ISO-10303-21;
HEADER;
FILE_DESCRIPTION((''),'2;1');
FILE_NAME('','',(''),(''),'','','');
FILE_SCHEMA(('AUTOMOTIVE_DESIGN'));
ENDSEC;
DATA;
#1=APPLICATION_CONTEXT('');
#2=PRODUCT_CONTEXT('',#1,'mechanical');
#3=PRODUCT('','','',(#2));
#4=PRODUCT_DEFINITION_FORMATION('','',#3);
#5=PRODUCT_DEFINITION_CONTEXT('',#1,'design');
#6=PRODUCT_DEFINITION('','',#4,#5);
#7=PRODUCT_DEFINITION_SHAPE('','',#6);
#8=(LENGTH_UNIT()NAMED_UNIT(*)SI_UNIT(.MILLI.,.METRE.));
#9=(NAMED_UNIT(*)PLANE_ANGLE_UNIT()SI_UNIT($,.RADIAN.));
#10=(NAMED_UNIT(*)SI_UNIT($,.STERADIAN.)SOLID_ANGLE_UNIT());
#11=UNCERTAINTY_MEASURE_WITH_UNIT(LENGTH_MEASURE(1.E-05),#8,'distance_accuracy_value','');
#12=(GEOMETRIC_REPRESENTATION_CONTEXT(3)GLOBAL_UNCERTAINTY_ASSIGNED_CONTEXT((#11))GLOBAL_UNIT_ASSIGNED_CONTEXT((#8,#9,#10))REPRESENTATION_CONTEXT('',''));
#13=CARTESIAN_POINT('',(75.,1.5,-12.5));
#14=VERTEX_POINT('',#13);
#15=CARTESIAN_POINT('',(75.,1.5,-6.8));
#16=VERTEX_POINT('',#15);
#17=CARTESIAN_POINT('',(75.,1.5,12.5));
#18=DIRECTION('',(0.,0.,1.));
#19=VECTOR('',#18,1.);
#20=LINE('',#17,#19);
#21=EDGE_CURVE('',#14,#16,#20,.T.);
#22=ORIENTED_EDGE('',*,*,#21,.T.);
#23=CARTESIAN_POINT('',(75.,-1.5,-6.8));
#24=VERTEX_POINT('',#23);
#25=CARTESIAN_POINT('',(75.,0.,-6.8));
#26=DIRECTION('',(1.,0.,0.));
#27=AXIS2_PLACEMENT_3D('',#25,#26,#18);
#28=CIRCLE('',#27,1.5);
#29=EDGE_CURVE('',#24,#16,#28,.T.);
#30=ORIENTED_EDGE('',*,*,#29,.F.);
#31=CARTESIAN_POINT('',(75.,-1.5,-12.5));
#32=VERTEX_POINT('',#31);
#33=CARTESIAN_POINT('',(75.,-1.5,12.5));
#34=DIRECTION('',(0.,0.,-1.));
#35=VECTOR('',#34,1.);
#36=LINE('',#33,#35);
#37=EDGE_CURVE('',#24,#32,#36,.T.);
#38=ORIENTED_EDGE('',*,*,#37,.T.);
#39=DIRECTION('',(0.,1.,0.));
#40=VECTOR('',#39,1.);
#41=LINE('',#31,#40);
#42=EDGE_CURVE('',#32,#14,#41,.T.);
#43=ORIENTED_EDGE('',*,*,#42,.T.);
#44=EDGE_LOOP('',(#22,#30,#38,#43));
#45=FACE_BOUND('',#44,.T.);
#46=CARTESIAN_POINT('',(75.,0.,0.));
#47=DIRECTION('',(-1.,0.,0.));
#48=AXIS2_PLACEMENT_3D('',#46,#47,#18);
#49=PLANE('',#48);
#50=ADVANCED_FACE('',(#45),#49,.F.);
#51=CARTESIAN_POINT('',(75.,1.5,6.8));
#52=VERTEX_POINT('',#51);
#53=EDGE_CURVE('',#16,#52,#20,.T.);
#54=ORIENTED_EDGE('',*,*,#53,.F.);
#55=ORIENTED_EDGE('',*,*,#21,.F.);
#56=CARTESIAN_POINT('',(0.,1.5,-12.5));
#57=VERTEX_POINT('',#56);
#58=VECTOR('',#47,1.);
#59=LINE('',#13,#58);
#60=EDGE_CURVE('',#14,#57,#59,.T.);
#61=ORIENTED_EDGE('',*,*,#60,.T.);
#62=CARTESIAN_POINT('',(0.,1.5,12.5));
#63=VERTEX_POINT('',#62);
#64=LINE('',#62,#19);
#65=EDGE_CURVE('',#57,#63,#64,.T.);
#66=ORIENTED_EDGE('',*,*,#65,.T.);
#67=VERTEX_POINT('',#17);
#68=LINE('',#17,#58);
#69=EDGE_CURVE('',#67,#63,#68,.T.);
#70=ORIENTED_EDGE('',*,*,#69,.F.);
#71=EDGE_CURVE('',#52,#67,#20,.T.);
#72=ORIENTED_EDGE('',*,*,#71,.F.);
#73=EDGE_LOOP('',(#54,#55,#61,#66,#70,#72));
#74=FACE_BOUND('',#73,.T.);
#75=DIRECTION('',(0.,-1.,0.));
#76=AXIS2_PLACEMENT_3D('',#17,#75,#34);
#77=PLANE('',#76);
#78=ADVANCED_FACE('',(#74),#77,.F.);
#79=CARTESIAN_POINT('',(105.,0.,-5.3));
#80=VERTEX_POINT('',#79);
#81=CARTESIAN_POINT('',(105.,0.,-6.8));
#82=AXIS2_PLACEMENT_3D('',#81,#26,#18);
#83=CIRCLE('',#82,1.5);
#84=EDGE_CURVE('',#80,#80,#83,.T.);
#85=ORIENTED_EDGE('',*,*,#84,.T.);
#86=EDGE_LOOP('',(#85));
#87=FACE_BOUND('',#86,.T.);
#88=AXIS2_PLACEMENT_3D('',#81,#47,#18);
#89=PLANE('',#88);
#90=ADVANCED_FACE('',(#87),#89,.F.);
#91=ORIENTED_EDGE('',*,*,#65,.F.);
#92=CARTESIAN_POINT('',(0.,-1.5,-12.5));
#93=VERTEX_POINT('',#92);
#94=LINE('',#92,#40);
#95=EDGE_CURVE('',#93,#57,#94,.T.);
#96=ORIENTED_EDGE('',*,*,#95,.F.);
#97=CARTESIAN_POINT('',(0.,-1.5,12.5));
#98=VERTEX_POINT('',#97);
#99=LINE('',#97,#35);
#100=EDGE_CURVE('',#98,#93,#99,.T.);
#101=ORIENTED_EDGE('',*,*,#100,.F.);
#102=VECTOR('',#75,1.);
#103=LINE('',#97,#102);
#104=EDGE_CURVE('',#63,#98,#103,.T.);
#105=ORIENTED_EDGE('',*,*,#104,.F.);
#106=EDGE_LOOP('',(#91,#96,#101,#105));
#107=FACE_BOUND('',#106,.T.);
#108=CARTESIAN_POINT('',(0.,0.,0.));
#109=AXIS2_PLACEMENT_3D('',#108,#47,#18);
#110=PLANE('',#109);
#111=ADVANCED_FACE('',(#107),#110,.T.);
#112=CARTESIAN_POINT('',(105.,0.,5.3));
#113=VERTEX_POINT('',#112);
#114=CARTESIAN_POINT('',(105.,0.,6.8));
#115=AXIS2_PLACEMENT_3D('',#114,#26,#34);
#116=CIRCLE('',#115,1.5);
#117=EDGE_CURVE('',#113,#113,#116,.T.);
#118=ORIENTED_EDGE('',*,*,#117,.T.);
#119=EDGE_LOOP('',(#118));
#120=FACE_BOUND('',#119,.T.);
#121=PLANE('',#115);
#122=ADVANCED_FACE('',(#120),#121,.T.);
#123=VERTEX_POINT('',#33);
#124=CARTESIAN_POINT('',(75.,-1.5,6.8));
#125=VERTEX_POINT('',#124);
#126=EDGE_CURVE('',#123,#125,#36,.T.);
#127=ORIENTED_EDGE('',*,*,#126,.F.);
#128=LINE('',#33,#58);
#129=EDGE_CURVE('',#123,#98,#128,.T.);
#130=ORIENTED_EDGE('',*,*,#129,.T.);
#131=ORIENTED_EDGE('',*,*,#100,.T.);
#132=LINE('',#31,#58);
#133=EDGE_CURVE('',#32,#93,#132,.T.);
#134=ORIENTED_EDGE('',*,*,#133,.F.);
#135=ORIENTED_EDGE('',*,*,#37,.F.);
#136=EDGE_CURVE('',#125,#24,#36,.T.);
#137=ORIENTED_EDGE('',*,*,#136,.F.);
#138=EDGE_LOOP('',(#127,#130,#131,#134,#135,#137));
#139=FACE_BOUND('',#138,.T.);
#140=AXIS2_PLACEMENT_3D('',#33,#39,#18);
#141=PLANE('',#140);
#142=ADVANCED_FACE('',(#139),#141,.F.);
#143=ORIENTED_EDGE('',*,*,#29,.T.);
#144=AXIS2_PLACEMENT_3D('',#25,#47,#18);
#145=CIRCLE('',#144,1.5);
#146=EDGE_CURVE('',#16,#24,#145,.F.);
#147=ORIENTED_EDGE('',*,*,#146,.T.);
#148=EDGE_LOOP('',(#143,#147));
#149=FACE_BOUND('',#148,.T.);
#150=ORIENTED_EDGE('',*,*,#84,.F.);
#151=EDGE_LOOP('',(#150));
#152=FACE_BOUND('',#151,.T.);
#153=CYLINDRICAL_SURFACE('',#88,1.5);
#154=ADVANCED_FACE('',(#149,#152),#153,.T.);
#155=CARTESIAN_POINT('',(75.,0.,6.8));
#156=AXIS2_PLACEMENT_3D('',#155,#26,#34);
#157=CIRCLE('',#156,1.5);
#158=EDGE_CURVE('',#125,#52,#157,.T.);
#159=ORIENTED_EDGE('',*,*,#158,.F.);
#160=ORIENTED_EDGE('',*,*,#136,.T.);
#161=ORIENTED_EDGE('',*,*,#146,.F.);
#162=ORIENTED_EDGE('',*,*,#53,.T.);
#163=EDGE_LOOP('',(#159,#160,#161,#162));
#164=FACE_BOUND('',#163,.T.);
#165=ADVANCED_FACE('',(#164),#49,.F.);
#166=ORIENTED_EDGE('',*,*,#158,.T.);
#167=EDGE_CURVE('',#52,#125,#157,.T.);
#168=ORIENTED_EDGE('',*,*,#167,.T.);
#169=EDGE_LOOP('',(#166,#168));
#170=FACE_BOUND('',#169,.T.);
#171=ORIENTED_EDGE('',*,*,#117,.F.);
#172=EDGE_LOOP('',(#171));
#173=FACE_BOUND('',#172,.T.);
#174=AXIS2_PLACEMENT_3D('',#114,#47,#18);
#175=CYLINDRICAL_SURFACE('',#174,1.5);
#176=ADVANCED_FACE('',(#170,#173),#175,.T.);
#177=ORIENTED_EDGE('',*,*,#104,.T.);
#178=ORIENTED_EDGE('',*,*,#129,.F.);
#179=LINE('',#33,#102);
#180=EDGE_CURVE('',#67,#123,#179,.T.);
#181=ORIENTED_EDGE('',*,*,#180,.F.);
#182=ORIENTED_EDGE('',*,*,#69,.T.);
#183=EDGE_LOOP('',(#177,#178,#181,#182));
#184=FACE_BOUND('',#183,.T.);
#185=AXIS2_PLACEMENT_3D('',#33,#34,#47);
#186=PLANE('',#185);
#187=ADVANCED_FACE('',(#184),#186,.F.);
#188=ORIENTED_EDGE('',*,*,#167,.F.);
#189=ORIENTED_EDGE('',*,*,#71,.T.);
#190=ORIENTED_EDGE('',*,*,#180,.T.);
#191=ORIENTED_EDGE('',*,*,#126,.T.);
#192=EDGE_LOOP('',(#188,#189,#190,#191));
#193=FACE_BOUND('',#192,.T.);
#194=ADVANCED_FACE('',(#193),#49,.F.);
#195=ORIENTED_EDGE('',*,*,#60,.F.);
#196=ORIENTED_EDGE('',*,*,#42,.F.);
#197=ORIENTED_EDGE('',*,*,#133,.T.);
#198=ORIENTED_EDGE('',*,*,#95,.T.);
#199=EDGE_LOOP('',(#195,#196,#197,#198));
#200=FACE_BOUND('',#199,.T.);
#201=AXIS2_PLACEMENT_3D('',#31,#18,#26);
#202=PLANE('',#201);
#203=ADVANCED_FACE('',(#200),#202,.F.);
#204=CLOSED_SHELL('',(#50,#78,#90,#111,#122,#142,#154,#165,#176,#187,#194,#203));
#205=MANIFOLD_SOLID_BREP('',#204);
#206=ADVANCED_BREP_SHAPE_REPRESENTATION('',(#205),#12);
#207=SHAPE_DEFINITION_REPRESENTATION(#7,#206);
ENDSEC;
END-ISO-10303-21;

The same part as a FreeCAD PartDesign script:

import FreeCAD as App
import Part
import Sketcher
from FreeCAD import Vector


def add_polygon(sketch, points):
    """Adds a closed chain of lines whose ends are joined by coincident constraints."""
    first, n = sketch.GeometryCount, len(points)
    for a, b in zip(points, points[1:] + points[:1]):
        sketch.addGeometry(Part.LineSegment(App.Vector(*a, 0), App.Vector(*b, 0)), False)
    for i in range(n):
        sketch.addConstraint(Sketcher.Constraint("Coincident", first + i, 2, first + (i + 1) % n, 1))

doc = App.newDocument("Part")
body = doc.addObject("PartDesign::Body", "Body")

# Sketch on YZ plane
sketch1 = body.newObject("Sketcher::SketchObject", "Sketch")
sketch1.AttachmentSupport = (doc.getObject("YZ_Plane"), [""])
sketch1.MapMode = "FlatFace"
add_polygon(sketch1, [(1.5, 12.5), (-1.5, 12.5), (-1.5, -12.5), (1.5, -12.5)])  # lines 0-3
sketch1.addConstraint([
    Sketcher.Constraint("Horizontal", 0),
    Sketcher.Constraint("Vertical", 1),
    Sketcher.Constraint("Horizontal", 2),
    Sketcher.Constraint("Vertical", 3),
    Sketcher.Constraint("Symmetric", 0, 2, 2, 2, -1, 1),
    Sketcher.Constraint("DistanceX", 0, 2, 0, 1, 3.0),
    Sketcher.Constraint("DistanceY", 1, 2, 1, 1, 25.0),
])
pad1 = body.newObject("PartDesign::Pad", "Pad")
pad1.Profile = sketch1
pad1.Length = 75

# Sketch on YZ plane
sketch2 = body.newObject("Sketcher::SketchObject", "Sketch001")
sketch2.AttachmentSupport = (doc.getObject("YZ_Plane"), [""])
sketch2.MapMode = "FlatFace"
sketch2.AttachmentOffset = App.Placement(Vector(0, 0, 75), App.Rotation())
sketch2.addGeometry([
    Part.Circle(Vector(0, 6.8, 0), Vector(0, 0, 1), 1.5),
    Part.Circle(Vector(0, -6.8, 0), Vector(0, 0, 1), 1.5),
], False)
sketch2.addConstraint([
    Sketcher.Constraint("Equal", 0, 1),
    Sketcher.Constraint("Symmetric", 0, 3, 1, 3, -1, 1),
    Sketcher.Constraint("PointOnObject", 0, 3, -2),
    Sketcher.Constraint("Diameter", 0, 3.0),
    Sketcher.Constraint("DistanceY", -1, 1, 0, 3, 6.8),
])
pad2 = body.newObject("PartDesign::Pad", "Pad001")
pad2.Profile = sketch2
pad2.Length = 30

doc.recompute()
